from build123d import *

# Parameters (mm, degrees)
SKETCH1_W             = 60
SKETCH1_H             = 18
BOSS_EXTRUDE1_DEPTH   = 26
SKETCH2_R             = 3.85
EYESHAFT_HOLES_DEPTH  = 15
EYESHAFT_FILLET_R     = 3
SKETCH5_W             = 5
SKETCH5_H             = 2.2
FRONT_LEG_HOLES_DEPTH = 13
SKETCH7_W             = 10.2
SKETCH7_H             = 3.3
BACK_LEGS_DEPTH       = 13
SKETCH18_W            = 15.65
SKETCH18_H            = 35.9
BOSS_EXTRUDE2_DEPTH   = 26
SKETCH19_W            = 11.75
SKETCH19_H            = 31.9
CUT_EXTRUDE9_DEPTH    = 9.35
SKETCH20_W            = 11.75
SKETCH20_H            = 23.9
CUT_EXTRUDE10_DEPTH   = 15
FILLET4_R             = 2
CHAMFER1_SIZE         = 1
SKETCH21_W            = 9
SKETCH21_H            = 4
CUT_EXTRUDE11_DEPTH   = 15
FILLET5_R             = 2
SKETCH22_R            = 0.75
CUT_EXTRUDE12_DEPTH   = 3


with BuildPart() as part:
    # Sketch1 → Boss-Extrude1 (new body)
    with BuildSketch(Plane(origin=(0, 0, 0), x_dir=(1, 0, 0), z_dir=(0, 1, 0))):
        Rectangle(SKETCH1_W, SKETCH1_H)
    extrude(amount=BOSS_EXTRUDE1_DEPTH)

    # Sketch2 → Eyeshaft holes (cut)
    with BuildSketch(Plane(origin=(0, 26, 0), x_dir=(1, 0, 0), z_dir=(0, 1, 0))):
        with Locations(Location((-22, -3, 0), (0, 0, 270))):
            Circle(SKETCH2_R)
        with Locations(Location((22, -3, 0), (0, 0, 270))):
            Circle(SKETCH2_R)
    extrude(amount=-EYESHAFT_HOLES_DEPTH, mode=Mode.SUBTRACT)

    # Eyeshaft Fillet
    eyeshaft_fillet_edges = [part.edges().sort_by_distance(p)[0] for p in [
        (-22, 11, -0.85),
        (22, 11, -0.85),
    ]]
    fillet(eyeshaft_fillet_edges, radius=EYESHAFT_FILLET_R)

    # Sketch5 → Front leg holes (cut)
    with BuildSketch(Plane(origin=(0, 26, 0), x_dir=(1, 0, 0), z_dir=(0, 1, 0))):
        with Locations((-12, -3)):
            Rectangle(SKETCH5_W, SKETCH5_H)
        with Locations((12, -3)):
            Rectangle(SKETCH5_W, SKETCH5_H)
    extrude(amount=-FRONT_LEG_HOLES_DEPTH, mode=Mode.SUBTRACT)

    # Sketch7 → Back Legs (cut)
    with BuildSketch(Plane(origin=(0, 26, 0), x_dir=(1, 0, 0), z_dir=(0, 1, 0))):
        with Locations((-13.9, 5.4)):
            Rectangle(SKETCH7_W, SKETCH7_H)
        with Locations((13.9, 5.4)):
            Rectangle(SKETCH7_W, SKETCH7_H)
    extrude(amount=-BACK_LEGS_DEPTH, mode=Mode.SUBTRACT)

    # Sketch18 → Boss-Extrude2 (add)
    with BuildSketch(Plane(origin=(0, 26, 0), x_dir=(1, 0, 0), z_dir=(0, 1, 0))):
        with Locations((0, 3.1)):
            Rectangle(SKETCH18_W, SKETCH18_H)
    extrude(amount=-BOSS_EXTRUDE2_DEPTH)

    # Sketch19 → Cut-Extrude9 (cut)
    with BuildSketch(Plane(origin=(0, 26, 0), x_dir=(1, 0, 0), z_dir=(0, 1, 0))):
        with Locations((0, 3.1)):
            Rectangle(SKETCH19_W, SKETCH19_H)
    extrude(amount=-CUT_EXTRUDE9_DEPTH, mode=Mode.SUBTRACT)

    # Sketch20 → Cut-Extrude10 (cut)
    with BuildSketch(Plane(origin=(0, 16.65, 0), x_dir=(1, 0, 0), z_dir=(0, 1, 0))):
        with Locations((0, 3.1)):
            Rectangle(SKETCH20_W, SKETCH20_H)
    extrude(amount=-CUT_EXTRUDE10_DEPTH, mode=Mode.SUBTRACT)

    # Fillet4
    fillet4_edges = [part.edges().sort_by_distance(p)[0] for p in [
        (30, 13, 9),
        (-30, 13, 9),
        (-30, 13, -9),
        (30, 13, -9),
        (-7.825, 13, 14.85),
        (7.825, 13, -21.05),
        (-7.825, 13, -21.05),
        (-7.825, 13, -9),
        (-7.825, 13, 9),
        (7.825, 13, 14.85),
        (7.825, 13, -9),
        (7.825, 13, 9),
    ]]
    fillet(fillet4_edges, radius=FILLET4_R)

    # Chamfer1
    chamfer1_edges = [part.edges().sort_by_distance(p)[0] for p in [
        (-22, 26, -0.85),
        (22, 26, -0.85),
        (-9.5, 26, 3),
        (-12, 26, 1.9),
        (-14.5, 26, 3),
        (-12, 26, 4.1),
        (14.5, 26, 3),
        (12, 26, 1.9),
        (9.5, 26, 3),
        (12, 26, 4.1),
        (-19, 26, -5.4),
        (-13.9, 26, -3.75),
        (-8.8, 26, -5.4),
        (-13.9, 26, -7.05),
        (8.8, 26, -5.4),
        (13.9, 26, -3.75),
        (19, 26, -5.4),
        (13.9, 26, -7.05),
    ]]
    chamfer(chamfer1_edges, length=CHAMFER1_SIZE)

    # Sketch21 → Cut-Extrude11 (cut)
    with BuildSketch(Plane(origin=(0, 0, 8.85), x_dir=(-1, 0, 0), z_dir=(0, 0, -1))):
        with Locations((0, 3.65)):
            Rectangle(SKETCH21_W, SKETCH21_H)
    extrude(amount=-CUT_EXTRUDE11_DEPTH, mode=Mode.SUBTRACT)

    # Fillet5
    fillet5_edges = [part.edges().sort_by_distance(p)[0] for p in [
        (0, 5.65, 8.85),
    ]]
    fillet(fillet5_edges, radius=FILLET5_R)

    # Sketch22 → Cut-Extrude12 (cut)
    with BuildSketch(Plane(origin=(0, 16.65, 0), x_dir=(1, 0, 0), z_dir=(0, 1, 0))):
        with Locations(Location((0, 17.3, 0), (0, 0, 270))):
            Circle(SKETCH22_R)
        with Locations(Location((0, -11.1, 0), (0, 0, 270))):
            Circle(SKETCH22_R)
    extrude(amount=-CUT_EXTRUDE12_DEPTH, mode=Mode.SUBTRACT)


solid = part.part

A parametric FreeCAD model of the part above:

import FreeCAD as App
import Part
import Sketcher
Q = App.Units.Quantity


def edges_at(feature, points):
    """Names of the edges that pass closest to the given points."""
    edges = feature.Shape.Edges
    near = lambda p: min(range(len(edges)), key=lambda i: edges[i].distToShape(Part.Vertex(*p))[0])
    return sorted({f"Edge{near(p) + 1}" for p in points})

doc = App.newDocument("Part")
body = doc.addObject("PartDesign::Body", "Body")

# Sketch on XZ plane
sketch1 = body.newObject("Sketcher::SketchObject", "Sketch")
sketch1.AttachmentSupport = (doc.getObject("XZ_Plane"), [""])
sketch1.MapMode = "FlatFace"
sketch1.addGeometry([
    Part.LineSegment(App.Vector(-30, -9, 0), App.Vector(-30, 9, 0)),
    Part.LineSegment(App.Vector(-30, 9, 0), App.Vector(30, 9, 0)),
    Part.LineSegment(App.Vector(30, 9, 0), App.Vector(30, -9, 0)),
    Part.LineSegment(App.Vector(30, -9, 0), App.Vector(-30, -9, 0)),
], False)
sketch1.addConstraint([
    Sketcher.Constraint("Coincident", 0, 2, 1, 1),
    Sketcher.Constraint("Coincident", 1, 2, 2, 1),
    Sketcher.Constraint("Coincident", 2, 2, 3, 1),
    Sketcher.Constraint("Coincident", 3, 2, 0, 1),
    Sketcher.Constraint("Vertical", 0),
    Sketcher.Constraint("Horizontal", 1),
    Sketcher.Constraint("Vertical", 2),
    Sketcher.Constraint("Horizontal", 3),
    Sketcher.Constraint("Symmetric", 0, 2, 2, 2, -1, 1),
    Sketcher.Constraint("DistanceX", 1, 1, 1, 2, Q("60 mm")),
    Sketcher.Constraint("DistanceY", 0, 1, 0, 2, Q("18 mm")),
])
pad1 = body.newObject("PartDesign::Pad", "Pad")
pad1.Profile = sketch1
pad1.Length = 26
pad1.Reversed = True

# Sketch on XZ plane
sketch2 = body.newObject("Sketcher::SketchObject", "Sketch001")
sketch2.AttachmentSupport = (doc.getObject("XZ_Plane"), [""])
sketch2.MapMode = "FlatFace"
sketch2.AttachmentOffset = App.Placement(App.Vector(0, 0, -26), App.Rotation())
sketch2.addGeometry([
    Part.Circle(App.Vector(-22, 3, 0), App.Vector(0, 0, 1), 3.85),
    Part.Circle(App.Vector(22, 3, 0), App.Vector(0, 0, 1), 3.85),
], False)
sketch2.addConstraint([
    Sketcher.Constraint("Equal", 0, 1),
    Sketcher.Constraint("Symmetric", 0, 3, 1, 3, -2),
    Sketcher.Constraint("Diameter", 0, Q("7.7 mm")),
    Sketcher.Constraint("DistanceX", 0, 3, -1, 1, Q("22 mm")),
    Sketcher.Constraint("DistanceY", -1, 1, 0, 3, Q("3 mm")),
])
pocket1 = body.newObject("PartDesign::Pocket", "Pocket")
pocket1.Profile = sketch2
pocket1.Length = 15
pocket1.Reversed = True
doc.recompute()

fillet = body.newObject("PartDesign::Fillet", "Fillet")
fillet.Base = (pocket1, edges_at(pocket1, [(-22, 11, -0.85), (22, 11, -0.85)]))
fillet.Radius = 3

# Sketch on XZ plane
sketch3 = body.newObject("Sketcher::SketchObject", "Sketch002")
sketch3.AttachmentSupport = (doc.getObject("XZ_Plane"), [""])
sketch3.MapMode = "FlatFace"
sketch3.AttachmentOffset = App.Placement(App.Vector(0, 0, -26), App.Rotation())
sketch3.addGeometry([
    Part.LineSegment(App.Vector(-14.5, 1.9, 0), App.Vector(-14.5, 4.1, 0)),  # 0
    Part.LineSegment(App.Vector(-14.5, 4.1, 0), App.Vector(-9.5, 4.1, 0)),  # 1
    Part.LineSegment(App.Vector(-9.5, 4.1, 0), App.Vector(-9.5, 1.9, 0)),  # 2
    Part.LineSegment(App.Vector(-9.5, 1.9, 0), App.Vector(-14.5, 1.9, 0)),  # 3
    Part.LineSegment(App.Vector(9.5, 1.9, 0), App.Vector(9.5, 4.1, 0)),  # 4
    Part.LineSegment(App.Vector(9.5, 4.1, 0), App.Vector(14.5, 4.1, 0)),  # 5
    Part.LineSegment(App.Vector(14.5, 4.1, 0), App.Vector(14.5, 1.9, 0)),  # 6
    Part.LineSegment(App.Vector(14.5, 1.9, 0), App.Vector(9.5, 1.9, 0)),  # 7
], False)
sketch3.addConstraint([
    Sketcher.Constraint("Coincident", 0, 2, 1, 1),
    Sketcher.Constraint("Coincident", 1, 2, 2, 1),
    Sketcher.Constraint("Coincident", 2, 2, 3, 1),
    Sketcher.Constraint("Coincident", 3, 2, 0, 1),
    Sketcher.Constraint("Coincident", 4, 2, 5, 1),
    Sketcher.Constraint("Coincident", 5, 2, 6, 1),
    Sketcher.Constraint("Coincident", 6, 2, 7, 1),
    Sketcher.Constraint("Coincident", 7, 2, 4, 1),
    Sketcher.Constraint("Vertical", 0),
    Sketcher.Constraint("Horizontal", 1),
    Sketcher.Constraint("Vertical", 2),
    Sketcher.Constraint("Horizontal", 3),
    Sketcher.Constraint("Vertical", 4),
    Sketcher.Constraint("Horizontal", 5),
    Sketcher.Constraint("Vertical", 6),
    Sketcher.Constraint("Horizontal", 7),
    Sketcher.Constraint("Symmetric", 1, 2, 4, 2, -2),
    Sketcher.Constraint("Symmetric", 3, 2, 6, 2, -2),
    Sketcher.Constraint("DistanceX", 1, 1, 1, 2, Q("5 mm")),
    Sketcher.Constraint("DistanceY", 0, 1, 0, 2, Q("2.2 mm")),
    Sketcher.Constraint("DistanceX", 1, 2, 4, 2, Q("19 mm")),
    Sketcher.Constraint("DistanceY", -1, 1, 0, 2, Q("4.1 mm")),
])
pocket2 = body.newObject("PartDesign::Pocket", "Pocket001")
pocket2.Profile = sketch3
pocket2.Length = 13
pocket2.Reversed = True

# Sketch on XZ plane
sketch4 = body.newObject("Sketcher::SketchObject", "Sketch003")
sketch4.AttachmentSupport = (doc.getObject("XZ_Plane"), [""])
sketch4.MapMode = "FlatFace"
sketch4.AttachmentOffset = App.Placement(App.Vector(0, 0, -26), App.Rotation())
sketch4.addGeometry([
    Part.LineSegment(App.Vector(-19, -7.05, 0), App.Vector(-19, -3.75, 0)),  # 0
    Part.LineSegment(App.Vector(-19, -3.75, 0), App.Vector(-8.8, -3.75, 0)),  # 1
    Part.LineSegment(App.Vector(-8.8, -3.75, 0), App.Vector(-8.8, -7.05, 0)),  # 2
    Part.LineSegment(App.Vector(-8.8, -7.05, 0), App.Vector(-19, -7.05, 0)),  # 3
    Part.LineSegment(App.Vector(8.8, -7.05, 0), App.Vector(8.8, -3.75, 0)),  # 4
    Part.LineSegment(App.Vector(8.8, -3.75, 0), App.Vector(19, -3.75, 0)),  # 5
    Part.LineSegment(App.Vector(19, -3.75, 0), App.Vector(19, -7.05, 0)),  # 6
    Part.LineSegment(App.Vector(19, -7.05, 0), App.Vector(8.8, -7.05, 0)),  # 7
], False)
sketch4.addConstraint([
    Sketcher.Constraint("Coincident", 0, 2, 1, 1),
    Sketcher.Constraint("Coincident", 1, 2, 2, 1),
    Sketcher.Constraint("Coincident", 2, 2, 3, 1),
    Sketcher.Constraint("Coincident", 3, 2, 0, 1),
    Sketcher.Constraint("Coincident", 4, 2, 5, 1),
    Sketcher.Constraint("Coincident", 5, 2, 6, 1),
    Sketcher.Constraint("Coincident", 6, 2, 7, 1),
    Sketcher.Constraint("Coincident", 7, 2, 4, 1),
    Sketcher.Constraint("Vertical", 0),
    Sketcher.Constraint("Horizontal", 1),
    Sketcher.Constraint("Vertical", 2),
    Sketcher.Constraint("Horizontal", 3),
    Sketcher.Constraint("Vertical", 4),
    Sketcher.Constraint("Horizontal", 5),
    Sketcher.Constraint("Vertical", 6),
    Sketcher.Constraint("Horizontal", 7),
    Sketcher.Constraint("Symmetric", 1, 2, 4, 2, -2),
    Sketcher.Constraint("Symmetric", 3, 2, 6, 2, -2),
    Sketcher.Constraint("DistanceX", 1, 1, 1, 2, Q("10.2 mm")),
    Sketcher.Constraint("DistanceY", 0, 1, 0, 2, Q("3.3 mm")),
    Sketcher.Constraint("DistanceX", 0, 2, -1, 1, Q("19 mm")),
    Sketcher.Constraint("DistanceY", 0, 2, -1, 1, Q("3.75 mm")),
])
pocket3 = body.newObject("PartDesign::Pocket", "Pocket002")
pocket3.Profile = sketch4
pocket3.Length = 13
pocket3.Reversed = True

# Sketch on XZ plane
sketch5 = body.newObject("Sketcher::SketchObject", "Sketch004")
sketch5.AttachmentSupport = (doc.getObject("XZ_Plane"), [""])
sketch5.MapMode = "FlatFace"
sketch5.AttachmentOffset = App.Placement(App.Vector(0, 0, -26), App.Rotation())
sketch5.addGeometry([
    Part.LineSegment(App.Vector(-7.825, -21.05, 0), App.Vector(-7.825, 14.85, 0)),
    Part.LineSegment(App.Vector(-7.825, 14.85, 0), App.Vector(7.825, 14.85, 0)),
    Part.LineSegment(App.Vector(7.825, 14.85, 0), App.Vector(7.825, -21.05, 0)),
    Part.LineSegment(App.Vector(7.825, -21.05, 0), App.Vector(-7.825, -21.05, 0)),
], False)
sketch5.addConstraint([
    Sketcher.Constraint("Coincident", 0, 2, 1, 1),
    Sketcher.Constraint("Coincident", 1, 2, 2, 1),
    Sketcher.Constraint("Coincident", 2, 2, 3, 1),
    Sketcher.Constraint("Coincident", 3, 2, 0, 1),
    Sketcher.Constraint("Vertical", 0),
    Sketcher.Constraint("Horizontal", 1),
    Sketcher.Constraint("Vertical", 2),
    Sketcher.Constraint("Horizontal", 3),
    Sketcher.Constraint("DistanceY", 0, 1, 0, 2, Q("35.9 mm")),
    Sketcher.Constraint("DistanceX", 1, 1, 1, 2, Q("15.65 mm")),
    Sketcher.Constraint("DistanceY", -1, 1, 0, 2, Q("14.85 mm")),
    Sketcher.Constraint("DistanceX", 0, 2, -1, 1, Q("7.825 mm")),
])
pad2 = body.newObject("PartDesign::Pad", "Pad001")
pad2.Profile = sketch5
pad2.Length = 26

# Sketch on XZ plane
sketch6 = body.newObject("Sketcher::SketchObject", "Sketch005")
sketch6.AttachmentSupport = (doc.getObject("XZ_Plane"), [""])
sketch6.MapMode = "FlatFace"
sketch6.AttachmentOffset = App.Placement(App.Vector(0, 0, -26), App.Rotation())
sketch6.addGeometry([
    Part.LineSegment(App.Vector(-5.875, -19.05, 0), App.Vector(-5.875, 12.85, 0)),
    Part.LineSegment(App.Vector(-5.875, 12.85, 0), App.Vector(5.875, 12.85, 0)),
    Part.LineSegment(App.Vector(5.875, 12.85, 0), App.Vector(5.875, -19.05, 0)),
    Part.LineSegment(App.Vector(5.875, -19.05, 0), App.Vector(-5.875, -19.05, 0)),
], False)
sketch6.addConstraint([
    Sketcher.Constraint("Coincident", 0, 2, 1, 1),
    Sketcher.Constraint("Coincident", 1, 2, 2, 1),
    Sketcher.Constraint("Coincident", 2, 2, 3, 1),
    Sketcher.Constraint("Coincident", 3, 2, 0, 1),
    Sketcher.Constraint("Vertical", 0),
    Sketcher.Constraint("Horizontal", 1),
    Sketcher.Constraint("Vertical", 2),
    Sketcher.Constraint("Horizontal", 3),
    Sketcher.Constraint("DistanceY", 0, 1, 0, 2, Q("31.9 mm")),
    Sketcher.Constraint("DistanceX", 1, 1, 1, 2, Q("11.75 mm")),
    Sketcher.Constraint("DistanceY", -1, 1, 0, 2, Q("12.85 mm")),
    Sketcher.Constraint("DistanceX", 0, 2, -1, 1, Q("5.875 mm")),
])
pocket4 = body.newObject("PartDesign::Pocket", "Pocket003")
pocket4.Profile = sketch6
pocket4.Length = 9.35
pocket4.Reversed = True

# Sketch on XZ plane
sketch7 = body.newObject("Sketcher::SketchObject", "Sketch006")
sketch7.AttachmentSupport = (doc.getObject("XZ_Plane"), [""])
sketch7.MapMode = "FlatFace"
sketch7.AttachmentOffset = App.Placement(App.Vector(0, 0, -16.65), App.Rotation())
sketch7.addGeometry([
    Part.LineSegment(App.Vector(-5.875, -15.05, 0), App.Vector(-5.875, 8.85, 0)),
    Part.LineSegment(App.Vector(-5.875, 8.85, 0), App.Vector(5.875, 8.85, 0)),
    Part.LineSegment(App.Vector(5.875, 8.85, 0), App.Vector(5.875, -15.05, 0)),
    Part.LineSegment(App.Vector(5.875, -15.05, 0), App.Vector(-5.875, -15.05, 0)),
], False)
sketch7.addConstraint([
    Sketcher.Constraint("Coincident", 0, 2, 1, 1),
    Sketcher.Constraint("Coincident", 1, 2, 2, 1),
    Sketcher.Constraint("Coincident", 2, 2, 3, 1),
    Sketcher.Constraint("Coincident", 3, 2, 0, 1),
    Sketcher.Constraint("Vertical", 0),
    Sketcher.Constraint("Horizontal", 1),
    Sketcher.Constraint("Vertical", 2),
    Sketcher.Constraint("Horizontal", 3),
    Sketcher.Constraint("DistanceY", 0, 1, 0, 2, Q("23.9 mm")),
    Sketcher.Constraint("DistanceX", 1, 1, 1, 2, Q("11.75 mm")),
    Sketcher.Constraint("DistanceY", -1, 1, 0, 2, Q("8.85 mm")),
    Sketcher.Constraint("DistanceX", 0, 2, -1, 1, Q("5.875 mm")),
])
pocket5 = body.newObject("PartDesign::Pocket", "Pocket004")
pocket5.Profile = sketch7
pocket5.Length = 15
pocket5.Reversed = True
doc.recompute()

fillet2 = body.newObject("PartDesign::Fillet", "Fillet001")
fillet2.Base = (pocket5, edges_at(pocket5, [
    (30, 13, 9),
    (-30, 13, 9),
    (-30, 13, -9),
    (30, 13, -9),
    (-7.825, 13, 14.85),
    (7.825, 13, -21.05),
    (-7.825, 13, -21.05),
    (-7.825, 13, -9),
    (-7.825, 13, 9),
    (7.825, 13, 14.85),
    (7.825, 13, -9),
    (7.825, 13, 9),
]))
fillet2.Radius = 2
doc.recompute()

chamfer = body.newObject("PartDesign::Chamfer", "Chamfer")
chamfer.Base = (fillet2, edges_at(fillet2, [
    (-22, 26, -0.85),
    (22, 26, -0.85),
    (-9.5, 26, 3),
    (-12, 26, 1.9),
    (-14.5, 26, 3),
    (-12, 26, 4.1),
    (14.5, 26, 3),
    (12, 26, 1.9),
    (9.5, 26, 3),
    (12, 26, 4.1),
    (-19, 26, -5.4),
    (-13.9, 26, -3.75),
    (-8.8, 26, -5.4),
    (-13.9, 26, -7.05),
    (8.8, 26, -5.4),
    (13.9, 26, -3.75),
    (19, 26, -5.4),
    (13.9, 26, -7.05),
]))
chamfer.Size = 1

# Sketch on XY plane
sketch8 = body.newObject("Sketcher::SketchObject", "Sketch007")
sketch8.AttachmentSupport = (doc.getObject("XY_Plane"), [""])
sketch8.MapMode = "FlatFace"
sketch8.AttachmentOffset = App.Placement(App.Vector(0, 0, 8.85), App.Rotation())
sketch8.addGeometry([
    Part.LineSegment(App.Vector(4.5, 5.65, 0), App.Vector(4.5, 1.65, 0)),
    Part.LineSegment(App.Vector(4.5, 1.65, 0), App.Vector(-4.5, 1.65, 0)),
    Part.LineSegment(App.Vector(-4.5, 1.65, 0), App.Vector(-4.5, 5.65, 0)),
    Part.LineSegment(App.Vector(-4.5, 5.65, 0), App.Vector(4.5, 5.65, 0)),
], False)
sketch8.addConstraint([
    Sketcher.Constraint("Coincident", 0, 2, 1, 1),
    Sketcher.Constraint("Coincident", 1, 2, 2, 1),
    Sketcher.Constraint("Coincident", 2, 2, 3, 1),
    Sketcher.Constraint("Coincident", 3, 2, 0, 1),
    Sketcher.Constraint("Vertical", 0),
    Sketcher.Constraint("Horizontal", 1),
    Sketcher.Constraint("Vertical", 2),
    Sketcher.Constraint("Horizontal", 3),
    Sketcher.Constraint("DistanceX", 1, 2, 1, 1, Q("9 mm")),
    Sketcher.Constraint("DistanceY", 0, 2, 0, 1, Q("4 mm")),
    Sketcher.Constraint("DistanceX", -1, 1, 0, 2, Q("4.5 mm")),
    Sketcher.Constraint("DistanceY", -1, 1, 0, 2, Q("1.65 mm")),
])
pocket6 = body.newObject("PartDesign::Pocket", "Pocket005")
pocket6.Profile = sketch8
pocket6.Length = 15
pocket6.Reversed = True
doc.recompute()

fillet3 = body.newObject("PartDesign::Fillet", "Fillet002")
fillet3.Base = (pocket6, edges_at(pocket6, [(0, 5.65, 8.85)]))
fillet3.Radius = 2

# Sketch on XZ plane
sketch9 = body.newObject("Sketcher::SketchObject", "Sketch008")
sketch9.AttachmentSupport = (doc.getObject("XZ_Plane"), [""])
sketch9.MapMode = "FlatFace"
sketch9.AttachmentOffset = App.Placement(App.Vector(0, 0, -16.65), App.Rotation())
sketch9.addGeometry([
    Part.Circle(App.Vector(0, -17.3, 0), App.Vector(0, 0, 1), 0.75),
    Part.Circle(App.Vector(0, 11.1, 0), App.Vector(0, 0, 1), 0.75),
], False)
sketch9.addConstraint([
    Sketcher.Constraint("Equal", 0, 1),
    Sketcher.Constraint("PointOnObject", 0, 3, -2),
    Sketcher.Constraint("PointOnObject", 1, 3, -2),
    Sketcher.Constraint("Diameter", 0, Q("1.5 mm")),
    Sketcher.Constraint("DistanceY", 0, 3, -1, 1, Q("17.3 mm")),
    Sketcher.Constraint("DistanceY", -1, 1, 1, 3, Q("11.1 mm")),
])
pocket7 = body.newObject("PartDesign::Pocket", "Pocket006")
pocket7.Profile = sketch9
pocket7.Length = 3
pocket7.Reversed = True

doc.recompute()
